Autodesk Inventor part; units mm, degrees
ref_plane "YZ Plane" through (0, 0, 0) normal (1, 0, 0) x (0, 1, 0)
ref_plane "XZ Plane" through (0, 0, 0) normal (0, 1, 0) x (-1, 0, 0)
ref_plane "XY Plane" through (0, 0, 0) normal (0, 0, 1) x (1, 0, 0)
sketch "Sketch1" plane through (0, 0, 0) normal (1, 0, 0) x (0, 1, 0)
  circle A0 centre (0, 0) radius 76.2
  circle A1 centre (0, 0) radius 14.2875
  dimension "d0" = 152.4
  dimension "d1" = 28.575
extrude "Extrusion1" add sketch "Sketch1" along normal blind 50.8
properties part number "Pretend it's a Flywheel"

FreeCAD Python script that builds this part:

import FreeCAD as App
import Part
import Sketcher

V = App.Vector
Q = App.Units.Quantity

doc = App.newDocument("Part")
body = doc.addObject("PartDesign::Body", "Body")

# Sketch on YZ plane
sketch1 = body.newObject("Sketcher::SketchObject", "Sketch")
sketch1.AttachmentSupport = (doc.getObject("YZ_Plane"), [""])
sketch1.MapMode = "FlatFace"
sketch1.addGeometry([
    Part.Circle(V(0, 0, 0), V(0, 0, 1), 76),
    Part.Circle(V(0, 0, 0), V(0, 0, 1), 14),
], False)
sketch1.addConstraint([
    Sketcher.Constraint("Coincident", 0, 3, -1, 1),
    Sketcher.Constraint("Coincident", 1, 3, -1, 1),
    Sketcher.Constraint("Diameter", 0, Q("6 in")),
    Sketcher.Constraint("Diameter", 1, Q("1.125 in")),
])
pad1 = body.newObject("PartDesign::Pad", "Pad")
pad1.Profile = sketch1
pad1.Length = Q("2 in")

doc.recompute()
